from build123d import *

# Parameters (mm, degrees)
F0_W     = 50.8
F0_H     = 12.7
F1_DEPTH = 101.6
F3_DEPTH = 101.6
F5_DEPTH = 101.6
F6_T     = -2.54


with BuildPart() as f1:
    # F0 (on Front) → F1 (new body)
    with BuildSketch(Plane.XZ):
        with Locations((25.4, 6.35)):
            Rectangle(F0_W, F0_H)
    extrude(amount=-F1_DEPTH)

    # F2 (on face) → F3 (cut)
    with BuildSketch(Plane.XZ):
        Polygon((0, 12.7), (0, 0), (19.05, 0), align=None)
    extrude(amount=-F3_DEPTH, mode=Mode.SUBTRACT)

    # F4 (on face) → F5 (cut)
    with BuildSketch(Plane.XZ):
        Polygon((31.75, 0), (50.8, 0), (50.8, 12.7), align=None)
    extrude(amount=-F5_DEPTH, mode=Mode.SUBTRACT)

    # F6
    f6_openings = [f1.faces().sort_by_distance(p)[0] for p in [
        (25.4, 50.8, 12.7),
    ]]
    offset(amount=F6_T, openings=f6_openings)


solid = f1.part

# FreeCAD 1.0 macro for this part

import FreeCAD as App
import Part
import Sketcher
from FreeCAD import Vector
Q = App.Units.Quantity


def faces_at(feature, points):
    """Names of the faces that lie closest to the given points."""
    faces = feature.Shape.Faces
    near = lambda p: min(range(len(faces)), key=lambda i: faces[i].distToShape(Part.Vertex(*p))[0])
    return sorted({f"Face{near(p) + 1}" for p in points})

doc = App.newDocument("Part")
body = doc.addObject("PartDesign::Body", "Body")

# Sketch on XZ plane
sketch1 = body.newObject("Sketcher::SketchObject", "Sketch")
sketch1.AttachmentSupport = (doc.getObject("XZ_Plane"), [""])
sketch1.MapMode = "FlatFace"
sketch1.addGeometry(Part.LineSegment(Vector(0, 13, 0), Vector(0, 0, 0)), False)
sketch1.addGeometry(Part.LineSegment(Vector(0, 0, 0), Vector(51, 0, 0)), False)
sketch1.addGeometry(Part.LineSegment(Vector(51, 0, 0), Vector(51, 13, 0)), False)
sketch1.addGeometry(Part.LineSegment(Vector(51, 13, 0), Vector(0, 13, 0)), False)
sketch1.addConstraint(Sketcher.Constraint("Coincident", 0, 2, 1, 1))
sketch1.addConstraint(Sketcher.Constraint("Coincident", 1, 2, 2, 1))
sketch1.addConstraint(Sketcher.Constraint("Coincident", 2, 2, 3, 1))
sketch1.addConstraint(Sketcher.Constraint("Coincident", 3, 2, 0, 1))
sketch1.addConstraint(Sketcher.Constraint("Vertical", 0))
sketch1.addConstraint(Sketcher.Constraint("Horizontal", 1))
sketch1.addConstraint(Sketcher.Constraint("Vertical", 2))
sketch1.addConstraint(Sketcher.Constraint("Horizontal", 3))
sketch1.addConstraint(Sketcher.Constraint("Coincident", 0, 2, -1, 1))
sketch1.addConstraint(Sketcher.Constraint("DistanceX", 1, 1, 1, 2, Q("2 in")))
sketch1.addConstraint(Sketcher.Constraint("DistanceY", 0, 2, 0, 1, Q("0.5 in")))
pad1 = body.newObject("PartDesign::Pad", "Pad")
pad1.Profile = sketch1
pad1.Length = Q("4 in")
pad1.Reversed = True

# Sketch on XZ plane
sketch2 = body.newObject("Sketcher::SketchObject", "Sketch001")
sketch2.AttachmentSupport = (doc.getObject("XZ_Plane"), [""])
sketch2.MapMode = "FlatFace"
sketch2.addGeometry(Part.LineSegment(Vector(0, 13, 0), Vector(0, 0, 0)), False)
sketch2.addGeometry(Part.LineSegment(Vector(0, 0, 0), Vector(19, 0, 0)), False)
sketch2.addGeometry(Part.LineSegment(Vector(19, 0, 0), Vector(0, 13, 0)), False)
sketch2.addConstraint(Sketcher.Constraint("Coincident", 0, 2, 1, 1))
sketch2.addConstraint(Sketcher.Constraint("Coincident", 1, 2, 2, 1))
sketch2.addConstraint(Sketcher.Constraint("Coincident", 2, 2, 0, 1))
sketch2.addConstraint(Sketcher.Constraint("Vertical", 0))
sketch2.addConstraint(Sketcher.Constraint("Horizontal", 1))
sketch2.addConstraint(Sketcher.Constraint("Coincident", 0, 2, -1, 1))
sketch2.addConstraint(Sketcher.Constraint("DistanceY", 0, 2, 0, 1, Q("0.5 in")))
sketch2.addConstraint(Sketcher.Constraint("DistanceX", 1, 1, 1, 2, Q("0.75 in")))
pocket1 = body.newObject("PartDesign::Pocket", "Pocket")
pocket1.Profile = sketch2
pocket1.Length = Q("4 in")

# Sketch on XZ plane
sketch3 = body.newObject("Sketcher::SketchObject", "Sketch002")
sketch3.AttachmentSupport = (doc.getObject("XZ_Plane"), [""])
sketch3.MapMode = "FlatFace"
sketch3.addGeometry(Part.LineSegment(Vector(32, 0, 0), Vector(51, 0, 0)), False)
sketch3.addGeometry(Part.LineSegment(Vector(51, 0, 0), Vector(51, 13, 0)), False)
sketch3.addGeometry(Part.LineSegment(Vector(51, 13, 0), Vector(32, 0, 0)), False)
sketch3.addConstraint(Sketcher.Constraint("Coincident", 0, 2, 1, 1))
sketch3.addConstraint(Sketcher.Constraint("Coincident", 1, 2, 2, 1))
sketch3.addConstraint(Sketcher.Constraint("Coincident", 2, 2, 0, 1))
sketch3.addConstraint(Sketcher.Constraint("Horizontal", 0))
sketch3.addConstraint(Sketcher.Constraint("Vertical", 1))
sketch3.addConstraint(Sketcher.Constraint("PointOnObject", 0, 2, -1))
sketch3.addConstraint(Sketcher.Constraint("DistanceY", 1, 1, 1, 2, Q("0.5 in")))
sketch3.addConstraint(Sketcher.Constraint("DistanceX", -1, 1, 0, 2, Q("2 in")))
sketch3.addConstraint(Sketcher.Constraint("DistanceX", 0, 1, 0, 2, Q("0.75 in")))
pocket2 = body.newObject("PartDesign::Pocket", "Pocket001")
pocket2.Profile = sketch3
pocket2.Length = Q("4 in")
doc.recompute()

thickness = body.newObject("PartDesign::Thickness", "Thickness")
thickness.Base = (pocket2, faces_at(pocket2, [(25.4, 50.8, 12.7)]))
thickness.Value = Q("0.1 in")
thickness.Reversed = True
thickness.Join = "Arc"

doc.recompute()
